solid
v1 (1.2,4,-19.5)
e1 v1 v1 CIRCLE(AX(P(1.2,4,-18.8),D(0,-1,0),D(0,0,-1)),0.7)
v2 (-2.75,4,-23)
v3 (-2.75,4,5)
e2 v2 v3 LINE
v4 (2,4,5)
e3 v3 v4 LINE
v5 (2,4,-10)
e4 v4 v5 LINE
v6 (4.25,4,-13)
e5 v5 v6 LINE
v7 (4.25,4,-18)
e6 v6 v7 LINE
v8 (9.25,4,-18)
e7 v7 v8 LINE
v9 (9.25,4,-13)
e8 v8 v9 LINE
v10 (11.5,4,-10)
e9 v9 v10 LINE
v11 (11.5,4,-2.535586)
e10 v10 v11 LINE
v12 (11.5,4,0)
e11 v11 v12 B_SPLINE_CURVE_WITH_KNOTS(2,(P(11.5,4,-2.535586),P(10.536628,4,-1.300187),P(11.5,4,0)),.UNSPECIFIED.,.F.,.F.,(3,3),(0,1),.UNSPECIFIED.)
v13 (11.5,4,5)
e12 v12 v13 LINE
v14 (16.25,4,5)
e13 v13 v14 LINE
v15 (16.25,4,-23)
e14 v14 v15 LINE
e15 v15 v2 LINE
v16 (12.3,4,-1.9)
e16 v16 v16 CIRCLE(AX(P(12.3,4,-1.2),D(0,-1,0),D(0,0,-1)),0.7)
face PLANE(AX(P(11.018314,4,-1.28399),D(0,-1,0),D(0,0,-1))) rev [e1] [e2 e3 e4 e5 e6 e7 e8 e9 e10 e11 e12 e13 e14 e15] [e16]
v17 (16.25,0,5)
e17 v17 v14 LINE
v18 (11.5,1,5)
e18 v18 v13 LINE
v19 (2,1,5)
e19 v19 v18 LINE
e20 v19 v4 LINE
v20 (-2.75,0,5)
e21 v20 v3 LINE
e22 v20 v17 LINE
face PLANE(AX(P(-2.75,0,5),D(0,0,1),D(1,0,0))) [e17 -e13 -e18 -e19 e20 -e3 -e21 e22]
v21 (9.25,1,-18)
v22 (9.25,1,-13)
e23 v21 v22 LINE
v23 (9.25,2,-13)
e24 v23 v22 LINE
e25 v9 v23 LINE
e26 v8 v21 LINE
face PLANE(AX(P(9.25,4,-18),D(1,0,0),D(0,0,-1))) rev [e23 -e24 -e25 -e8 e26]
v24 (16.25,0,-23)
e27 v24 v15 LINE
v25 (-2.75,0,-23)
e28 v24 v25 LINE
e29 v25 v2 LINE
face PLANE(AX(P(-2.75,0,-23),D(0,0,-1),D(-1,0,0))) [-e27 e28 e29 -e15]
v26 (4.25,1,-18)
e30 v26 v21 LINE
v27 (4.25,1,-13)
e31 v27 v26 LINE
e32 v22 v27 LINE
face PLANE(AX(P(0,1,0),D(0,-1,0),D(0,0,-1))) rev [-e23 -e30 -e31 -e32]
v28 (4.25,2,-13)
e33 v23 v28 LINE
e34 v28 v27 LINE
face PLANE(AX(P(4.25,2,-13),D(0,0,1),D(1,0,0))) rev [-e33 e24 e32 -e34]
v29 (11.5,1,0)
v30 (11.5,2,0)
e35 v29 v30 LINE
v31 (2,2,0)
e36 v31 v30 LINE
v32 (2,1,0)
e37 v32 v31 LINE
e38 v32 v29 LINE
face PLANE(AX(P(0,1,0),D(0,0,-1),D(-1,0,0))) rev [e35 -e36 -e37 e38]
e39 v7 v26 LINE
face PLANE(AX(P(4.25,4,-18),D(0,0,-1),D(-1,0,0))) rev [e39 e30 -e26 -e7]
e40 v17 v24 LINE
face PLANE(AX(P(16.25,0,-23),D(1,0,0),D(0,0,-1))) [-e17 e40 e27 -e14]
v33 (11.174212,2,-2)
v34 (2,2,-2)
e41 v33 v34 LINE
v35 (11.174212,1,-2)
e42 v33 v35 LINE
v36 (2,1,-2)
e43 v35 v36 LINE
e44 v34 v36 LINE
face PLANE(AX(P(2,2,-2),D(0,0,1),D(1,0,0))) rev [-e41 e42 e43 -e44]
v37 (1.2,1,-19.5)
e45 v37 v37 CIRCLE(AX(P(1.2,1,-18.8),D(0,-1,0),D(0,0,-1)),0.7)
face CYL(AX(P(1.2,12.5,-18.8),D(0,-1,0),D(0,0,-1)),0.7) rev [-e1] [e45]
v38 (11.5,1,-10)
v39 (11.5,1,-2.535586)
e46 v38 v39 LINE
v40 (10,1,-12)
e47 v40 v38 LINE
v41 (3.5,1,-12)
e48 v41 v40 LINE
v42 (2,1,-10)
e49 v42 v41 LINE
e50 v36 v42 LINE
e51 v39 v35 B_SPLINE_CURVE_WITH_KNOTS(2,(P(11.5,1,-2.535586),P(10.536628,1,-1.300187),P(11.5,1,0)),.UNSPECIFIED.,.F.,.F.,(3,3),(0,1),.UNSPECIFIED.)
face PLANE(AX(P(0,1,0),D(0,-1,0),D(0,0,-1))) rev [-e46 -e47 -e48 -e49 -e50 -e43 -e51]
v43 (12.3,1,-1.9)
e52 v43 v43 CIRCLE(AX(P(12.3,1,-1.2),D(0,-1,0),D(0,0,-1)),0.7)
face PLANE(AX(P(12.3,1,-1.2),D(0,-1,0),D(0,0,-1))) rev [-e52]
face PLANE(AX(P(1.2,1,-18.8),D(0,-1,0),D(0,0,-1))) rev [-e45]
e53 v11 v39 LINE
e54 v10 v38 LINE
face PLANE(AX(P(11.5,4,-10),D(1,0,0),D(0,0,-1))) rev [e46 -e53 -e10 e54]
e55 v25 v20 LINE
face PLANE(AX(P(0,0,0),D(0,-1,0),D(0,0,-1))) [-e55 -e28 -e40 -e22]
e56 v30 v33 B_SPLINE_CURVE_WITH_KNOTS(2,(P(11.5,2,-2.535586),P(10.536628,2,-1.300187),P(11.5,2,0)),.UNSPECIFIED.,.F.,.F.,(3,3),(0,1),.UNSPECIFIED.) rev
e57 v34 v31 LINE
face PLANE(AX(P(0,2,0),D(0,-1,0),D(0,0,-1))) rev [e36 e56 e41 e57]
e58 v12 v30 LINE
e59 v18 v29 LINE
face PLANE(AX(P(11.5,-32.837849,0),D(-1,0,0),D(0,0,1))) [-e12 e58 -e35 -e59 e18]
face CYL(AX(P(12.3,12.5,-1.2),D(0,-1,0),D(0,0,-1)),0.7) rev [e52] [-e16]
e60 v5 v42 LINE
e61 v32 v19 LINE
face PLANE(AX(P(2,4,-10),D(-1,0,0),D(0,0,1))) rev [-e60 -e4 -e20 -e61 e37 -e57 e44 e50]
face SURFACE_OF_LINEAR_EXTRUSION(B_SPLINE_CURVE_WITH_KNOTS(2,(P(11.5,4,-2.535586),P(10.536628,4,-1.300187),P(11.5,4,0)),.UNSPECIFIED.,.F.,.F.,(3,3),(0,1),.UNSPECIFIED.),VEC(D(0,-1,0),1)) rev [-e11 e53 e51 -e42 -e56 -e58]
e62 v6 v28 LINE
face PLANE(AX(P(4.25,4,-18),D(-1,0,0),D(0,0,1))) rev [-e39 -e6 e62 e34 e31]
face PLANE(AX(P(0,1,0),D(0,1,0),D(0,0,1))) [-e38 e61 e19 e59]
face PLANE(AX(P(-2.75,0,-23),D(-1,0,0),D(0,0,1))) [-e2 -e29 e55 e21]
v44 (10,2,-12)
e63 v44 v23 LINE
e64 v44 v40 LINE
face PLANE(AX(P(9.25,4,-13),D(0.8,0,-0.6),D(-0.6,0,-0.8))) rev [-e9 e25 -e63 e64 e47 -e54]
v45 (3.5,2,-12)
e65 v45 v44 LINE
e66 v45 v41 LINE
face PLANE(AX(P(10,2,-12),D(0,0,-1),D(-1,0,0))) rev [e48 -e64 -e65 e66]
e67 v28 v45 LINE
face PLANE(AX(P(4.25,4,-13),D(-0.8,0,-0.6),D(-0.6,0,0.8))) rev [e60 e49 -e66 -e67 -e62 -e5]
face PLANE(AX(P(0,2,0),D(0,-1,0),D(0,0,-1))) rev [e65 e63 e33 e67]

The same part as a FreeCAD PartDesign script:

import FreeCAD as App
import Part
import Sketcher

V = App.Vector
Q = App.Units.Quantity

doc = App.newDocument("Part")
body = doc.addObject("PartDesign::Body", "Body")

sketch1 = doc.addObject("Sketcher::SketchObject", "Sketch")
body.addObject(sketch1)
sketch1.AttachmentSupport = (doc.XZ_Plane, [""])
sketch1.MapMode = "FlatFace"
sketch1.addGeometry(Part.LineSegment(V(0, -20, 0), V(0, 0, 0)), False)
sketch1.addGeometry(Part.LineSegment(V(0, 0, 0), V(14, 0, 0)), False)
sketch1.addGeometry(Part.LineSegment(V(14, 0, 0), V(14, -20, 0)), False)
sketch1.addGeometry(Part.LineSegment(V(14, -20, 0), V(0, -20, 0)), False)
sketch1.addConstraint(Sketcher.Constraint("Coincident", 0, 2, 1, 1))
sketch1.addConstraint(Sketcher.Constraint("Coincident", 1, 2, 2, 1))
sketch1.addConstraint(Sketcher.Constraint("Coincident", 2, 2, 3, 1))
sketch1.addConstraint(Sketcher.Constraint("Coincident", 3, 2, 0, 1))
sketch1.addConstraint(Sketcher.Constraint("Vertical", 0))
sketch1.addConstraint(Sketcher.Constraint("Horizontal", 1))
sketch1.addConstraint(Sketcher.Constraint("Vertical", 2))
sketch1.addConstraint(Sketcher.Constraint("Horizontal", 3))
sketch1.addConstraint(Sketcher.Constraint("Coincident", 0, 2, -1, 1))
sketch1.addConstraint(Sketcher.Constraint("DistanceY", 0, 1, 0, 2, Q("20 mm")))
sketch1.addConstraint(Sketcher.Constraint("DistanceX", 1, 1, 1, 2, Q("13.5 mm")))
pad1 = doc.addObject("PartDesign::Pad", "Pad")
body.addObject(pad1)
pad1.Profile = sketch1
pad1.Length = 1
pad1.Reversed = True

sketch2 = doc.addObject("Sketcher::SketchObject", "Sketch001")
body.addObject(sketch2)
sketch2.AttachmentSupport = (doc.XZ_Plane, [""])
sketch2.MapMode = "FlatFace"
sketch2.AttachmentOffset = App.Placement(V(0, 0, -1), App.Rotation())
sketch2.addGeometry(Part.LineSegment(V(2, 0, 0), V(2, -10, 0)), False)
sketch2.addGeometry(Part.LineSegment(V(2, -10, 0), V(4.25, -13, 0)), False)
sketch2.addGeometry(Part.LineSegment(V(4.25, -13, 0), V(4.25, -18, 0)), False)
sketch2.addGeometry(Part.LineSegment(V(4.25, -18, 0), V(9.25, -18, 0)), False)
sketch2.addGeometry(Part.LineSegment(V(9.25, -18, 0), V(9.25, -13, 0)), False)
sketch2.addGeometry(Part.LineSegment(V(9.25, -13, 0), V(11.5, -10, 0)), False)
sketch2.addGeometry(Part.LineSegment(V(11.5, -10, 0), V(11.5, -2.535586, 0)), False)
sketch2.addGeometry(Part.BSplineCurve([V(11.5, -2.535586, 0), V(10.536628, -1.300187, 0), V(11.5, 0, 0)], [3, 3], [0, 1], False, 2, [1, 1, 1], False), False)
sketch2.addGeometry(Part.LineSegment(V(11.5, 0, 0), V(13.5, 0, 0)), False)
sketch2.addGeometry(Part.LineSegment(V(13.5, 0, 0), V(13.5, -20, 0)), False)
sketch2.addGeometry(Part.LineSegment(V(13.5, -20, 0), V(0, -20, 0)), False)
sketch2.addGeometry(Part.LineSegment(V(0, -20, 0), V(0, 0, 0)), False)
sketch2.addGeometry(Part.LineSegment(V(0, 0, 0), V(2, 0, 0)), False)
sketch2.addConstraint(Sketcher.Constraint("Block", 7))
sketch2.addConstraint(Sketcher.Constraint("Coincident", 0, 2, 1, 1))
sketch2.addConstraint(Sketcher.Constraint("Coincident", 1, 2, 2, 1))
sketch2.addConstraint(Sketcher.Constraint("Coincident", 2, 2, 3, 1))
sketch2.addConstraint(Sketcher.Constraint("Coincident", 3, 2, 4, 1))
sketch2.addConstraint(Sketcher.Constraint("Coincident", 4, 2, 5, 1))
sketch2.addConstraint(Sketcher.Constraint("Coincident", 5, 2, 6, 1))
sketch2.addConstraint(Sketcher.Constraint("Coincident", 6, 2, 7, 1))
sketch2.addConstraint(Sketcher.Constraint("Coincident", 7, 2, 8, 1))
sketch2.addConstraint(Sketcher.Constraint("Coincident", 8, 2, 9, 1))
sketch2.addConstraint(Sketcher.Constraint("Coincident", 9, 2, 10, 1))
sketch2.addConstraint(Sketcher.Constraint("Coincident", 10, 2, 11, 1))
sketch2.addConstraint(Sketcher.Constraint("Coincident", 11, 2, 12, 1))
sketch2.addConstraint(Sketcher.Constraint("Coincident", 12, 2, 0, 1))
sketch2.addConstraint(Sketcher.Constraint("Vertical", 0))
sketch2.addConstraint(Sketcher.Constraint("Vertical", 2))
sketch2.addConstraint(Sketcher.Constraint("Horizontal", 3))
sketch2.addConstraint(Sketcher.Constraint("Vertical", 4))
sketch2.addConstraint(Sketcher.Constraint("Vertical", 6))
sketch2.addConstraint(Sketcher.Constraint("Horizontal", 8))
sketch2.addConstraint(Sketcher.Constraint("Vertical", 9))
sketch2.addConstraint(Sketcher.Constraint("Horizontal", 10))
sketch2.addConstraint(Sketcher.Constraint("Vertical", 11))
sketch2.addConstraint(Sketcher.Constraint("Horizontal", 12))
sketch2.addConstraint(Sketcher.Constraint("Coincident", 11, 2, -1, 1))
sketch2.addConstraint(Sketcher.Constraint("Horizontal", 1, 2, 4, 2))
sketch2.addConstraint(Sketcher.Constraint("Horizontal", 0, 2, 5, 2))
sketch2.addConstraint(Sketcher.Constraint("Equal", 8, 12))
sketch2.addConstraint(Sketcher.Constraint("Equal", 3, 2))
sketch2.addConstraint(Sketcher.Constraint("Equal", 1, 5))
sketch2.addConstraint(Sketcher.Constraint("DistanceX", 3, 1, 3, 2, Q("5 mm")))
sketch2.addConstraint(Sketcher.Constraint("DistanceX", 8, 1, 8, 2, Q("2 mm")))
sketch2.addConstraint(Sketcher.Constraint("DistanceY", 0, 2, 0, 1, Q("10 mm")))
sketch2.addConstraint(Sketcher.Constraint("DistanceY", 9, 2, 9, 1, Q("20 mm")))
sketch2.addConstraint(Sketcher.Constraint("DistanceY", 1, 2, -1, 1, Q("13 mm")))
pad2 = doc.addObject("PartDesign::Pad", "Pad001")
body.addObject(pad2)
pad2.Profile = sketch2
pad2.Length = 3
pad2.Reversed = True

sketch3 = doc.addObject("Sketcher::SketchObject", "Sketch002")
body.addObject(sketch3)
sketch3.AttachmentSupport = (doc.XZ_Plane, [""])
sketch3.MapMode = "FlatFace"
sketch3.AttachmentOffset = App.Placement(V(0, 0, -1), App.Rotation())
sketch3.addGeometry(Part.LineSegment(V(9.2, -13, 0), V(4.2, -13, 0)), False)
sketch3.addGeometry(Part.LineSegment(V(4.2, -13, 0), V(3.5, -12, 0)), False)
sketch3.addGeometry(Part.LineSegment(V(3.5, -12, 0), V(10, -12, 0)), False)
sketch3.addGeometry(Part.LineSegment(V(10, -12, 0), V(9.2, -13, 0)), False)
sketch3.addConstraint(Sketcher.Constraint("Coincident", 0, 2, 1, 1))
sketch3.addConstraint(Sketcher.Constraint("Coincident", 1, 2, 2, 1))
sketch3.addConstraint(Sketcher.Constraint("Coincident", 2, 2, 3, 1))
sketch3.addConstraint(Sketcher.Constraint("Coincident", 3, 2, 0, 1))
sketch3.addConstraint(Sketcher.Constraint("Horizontal", 0))
sketch3.addConstraint(Sketcher.Constraint("Horizontal", 2))
sketch3.addConstraint(Sketcher.Constraint("Equal", 1, 3))
sketch3.addConstraint(Sketcher.Constraint("DistanceX", 0, 2, 0, 1, Q("5 mm")))
sketch3.addConstraint(Sketcher.Constraint("DistanceX", 2, 1, 2, 2, Q("6.5 mm")))
sketch3.addConstraint(Sketcher.Constraint("DistanceY", 0, 2, -1, 1, Q("13 mm")))
sketch3.addConstraint(Sketcher.Constraint("DistanceY", 1, 2, -1, 1, Q("12 mm")))
sketch3.addConstraint(Sketcher.Constraint("DistanceX", -1, 1, 2, 2, Q("10 mm")))
pad3 = doc.addObject("PartDesign::Pad", "Pad002")
body.addObject(pad3)
pad3.Profile = sketch3
pad3.Length = 1
pad3.Reversed = True

sketch4 = doc.addObject("Sketcher::SketchObject", "Sketch003")
body.addObject(sketch4)
sketch4.AttachmentSupport = (doc.XZ_Plane, [""])
sketch4.MapMode = "FlatFace"
sketch4.AttachmentOffset = App.Placement(V(0, 0, -1), App.Rotation())
sketch4.addGeometry(Part.Circle(V(1.2, -18.8, 0), V(0, 0, 1), 0.7), False)
sketch4.addGeometry(Part.Circle(V(12.3, -1.2, 0), V(0, 0, 1), 0.7), False)
sketch4.addConstraint(Sketcher.Constraint("Equal", 0, 1))
sketch4.addConstraint(Sketcher.Constraint("Diameter", 0, Q("1.4 mm")))
sketch4.addConstraint(Sketcher.Constraint("DistanceX", -1, 1, 0, 3, Q("1.2 mm")))
sketch4.addConstraint(Sketcher.Constraint("DistanceY", 0, 3, -1, 1, Q("18.8 mm")))
sketch4.addConstraint(Sketcher.Constraint("DistanceX", -1, 1, 1, 3, Q("12.3 mm")))
sketch4.addConstraint(Sketcher.Constraint("DistanceY", 1, 3, -1, 1, Q("1.2 mm")))
pocket1 = doc.addObject("PartDesign::Pocket", "Pocket")
body.addObject(pocket1)
pocket1.Profile = sketch4
pocket1.Length = 11.5

sketch5 = doc.addObject("Sketcher::SketchObject", "Sketch004")
body.addObject(sketch5)
sketch5.AttachmentSupport = (doc.XZ_Plane, [""])
sketch5.MapMode = "FlatFace"
sketch5.AttachmentOffset = App.Placement(V(0, 0, -1), App.Rotation())
sketch5.addGeometry(Part.LineSegment(V(2, -2, 0), V(2, 0, 0)), False)
sketch5.addGeometry(Part.LineSegment(V(2, 0, 0), V(11.5, 0, 0)), False)
sketch5.addGeometry(Part.LineSegment(V(11.5, 0, 0), V(11.5, -2, 0)), False)
sketch5.addGeometry(Part.LineSegment(V(11.5, -2, 0), V(2, -2, 0)), False)
sketch5.addConstraint(Sketcher.Constraint("Coincident", 0, 2, 1, 1))
sketch5.addConstraint(Sketcher.Constraint("Coincident", 1, 2, 2, 1))
sketch5.addConstraint(Sketcher.Constraint("Coincident", 2, 2, 3, 1))
sketch5.addConstraint(Sketcher.Constraint("Coincident", 3, 2, 0, 1))
sketch5.addConstraint(Sketcher.Constraint("Vertical", 0))
sketch5.addConstraint(Sketcher.Constraint("Horizontal", 1))
sketch5.addConstraint(Sketcher.Constraint("Vertical", 2))
sketch5.addConstraint(Sketcher.Constraint("Horizontal", 3))
sketch5.addConstraint(Sketcher.Constraint("PointOnObject", 0, 2, -1))
sketch5.addConstraint(Sketcher.Constraint("DistanceY", 0, 1, 0, 2, Q("2 mm")))
sketch5.addConstraint(Sketcher.Constraint("DistanceX", 1, 1, 1, 2, Q("9.5 mm")))
sketch5.addConstraint(Sketcher.Constraint("DistanceX", -1, 1, 0, 2, Q("2 mm")))
pad4 = doc.addObject("PartDesign::Pad", "Pad003")
body.addObject(pad4)
pad4.Profile = sketch5
pad4.Length = 1
pad4.Reversed = True

sketch6 = doc.addObject("Sketcher::SketchObject", "Sketch005")
body.addObject(sketch6)
sketch6.AttachmentSupport = (doc.XZ_Plane, [""])
sketch6.MapMode = "FlatFace"
sketch6.AttachmentOffset = App.Placement(V(0, 0, -1), App.Rotation())
sketch6.addGeometry(Part.LineSegment(V(-3, -23, 0), V(-3, 5, 0)), False)
sketch6.addGeometry(Part.LineSegment(V(-3, 5, 0), V(16, 5, 0)), False)
sketch6.addGeometry(Part.LineSegment(V(16, 5, 0), V(16, -23, 0)), False)
sketch6.addGeometry(Part.LineSegment(V(16, -23, 0), V(-3, -23, 0)), False)
sketch6.addGeometry(Part.LineSegment(V(14, 0, 0), V(0, 0, 0)), False)
sketch6.addGeometry(Part.LineSegment(V(0, 0, 0), V(0, -20, 0)), False)
sketch6.addGeometry(Part.LineSegment(V(0, -20, 0), V(14, -20, 0)), False)
sketch6.addGeometry(Part.LineSegment(V(14, -20, 0), V(14, 0, 0)), False)
sketch6.addConstraint(Sketcher.Constraint("Coincident", 0, 2, 1, 1))
sketch6.addConstraint(Sketcher.Constraint("Coincident", 1, 2, 2, 1))
sketch6.addConstraint(Sketcher.Constraint("Coincident", 2, 2, 3, 1))
sketch6.addConstraint(Sketcher.Constraint("Coincident", 3, 2, 0, 1))
sketch6.addConstraint(Sketcher.Constraint("Coincident", 4, 2, 5, 1))
sketch6.addConstraint(Sketcher.Constraint("Coincident", 5, 2, 6, 1))
sketch6.addConstraint(Sketcher.Constraint("Coincident", 6, 2, 7, 1))
sketch6.addConstraint(Sketcher.Constraint("Coincident", 7, 2, 4, 1))
sketch6.addConstraint(Sketcher.Constraint("Vertical", 0))
sketch6.addConstraint(Sketcher.Constraint("Horizontal", 1))
sketch6.addConstraint(Sketcher.Constraint("Vertical", 2))
sketch6.addConstraint(Sketcher.Constraint("Horizontal", 3))
sketch6.addConstraint(Sketcher.Constraint("Horizontal", 4))
sketch6.addConstraint(Sketcher.Constraint("Vertical", 5))
sketch6.addConstraint(Sketcher.Constraint("Horizontal", 6))
sketch6.addConstraint(Sketcher.Constraint("Vertical", 7))
sketch6.addConstraint(Sketcher.Constraint("Coincident", 4, 2, -1, 1))
sketch6.addConstraint(Sketcher.Constraint("DistanceX", 1, 1, 1, 2, Q("19 mm")))
sketch6.addConstraint(Sketcher.Constraint("DistanceY", 0, 1, 0, 2, Q("28 mm")))
sketch6.addConstraint(Sketcher.Constraint("DistanceY", 5, 2, 5, 1, Q("20 mm")))
sketch6.addConstraint(Sketcher.Constraint("DistanceX", 4, 2, 4, 1, Q("13.5 mm")))
sketch6.addConstraint(Sketcher.Constraint("DistanceY", -1, 1, 0, 2, Q("5 mm")))
sketch6.addConstraint(Sketcher.Constraint("DistanceX", 0, 2, -1, 1, Q("2.75 mm")))
pad5 = doc.addObject("PartDesign::Pad", "Pad004")
body.addObject(pad5)
pad5.Profile = sketch6
pad5.Length = 1

sketch7 = doc.addObject("Sketcher::SketchObject", "Sketch006")
body.addObject(sketch7)
sketch7.AttachmentSupport = (doc.XZ_Plane, [""])
sketch7.MapMode = "FlatFace"
sketch7.AttachmentOffset = App.Placement(V(0, 0, -4), App.Rotation())
sketch7.addGeometry(Part.LineSegment(V(2, 5, 0), V(2, 0, 0)), False)
sketch7.addGeometry(Part.LineSegment(V(2, 0, 0), V(0, 0, 0)), False)
sketch7.addGeometry(Part.LineSegment(V(0, 0, 0), V(0, -20, 0)), False)
sketch7.addGeometry(Part.LineSegment(V(0, -20, 0), V(13.5, -20, 0)), False)
sketch7.addGeometry(Part.LineSegment(V(13.5, -20, 0), V(13.5, 0, 0)), False)
sketch7.addGeometry(Part.LineSegment(V(13.5, 0, 0), V(11.5, 0, 0)), False)
sketch7.addGeometry(Part.LineSegment(V(11.5, 0, 0), V(11.5, 5, 0)), False)
sketch7.addGeometry(Part.LineSegment(V(11.5, 5, 0), V(16.2, 5, 0)), False)
sketch7.addGeometry(Part.LineSegment(V(16.2, 5, 0), V(16.2, -23, 0)), False)
sketch7.addGeometry(Part.LineSegment(V(16.2, -23, 0), V(-2.8, -23, 0)), False)
sketch7.addGeometry(Part.LineSegment(V(-2.8, -23, 0), V(-2.8, 5, 0)), False)
sketch7.addGeometry(Part.LineSegment(V(-2.8, 5, 0), V(2, 5, 0)), False)
sketch7.addConstraint(Sketcher.Constraint("Coincident", 0, 2, 1, 1))
sketch7.addConstraint(Sketcher.Constraint("Coincident", 1, 2, 2, 1))
sketch7.addConstraint(Sketcher.Constraint("Coincident", 2, 2, 3, 1))
sketch7.addConstraint(Sketcher.Constraint("Coincident", 3, 2, 4, 1))
sketch7.addConstraint(Sketcher.Constraint("Coincident", 4, 2, 5, 1))
sketch7.addConstraint(Sketcher.Constraint("Coincident", 5, 2, 6, 1))
sketch7.addConstraint(Sketcher.Constraint("Coincident", 6, 2, 7, 1))
sketch7.addConstraint(Sketcher.Constraint("Coincident", 7, 2, 8, 1))
sketch7.addConstraint(Sketcher.Constraint("Coincident", 8, 2, 9, 1))
sketch7.addConstraint(Sketcher.Constraint("Coincident", 9, 2, 10, 1))
sketch7.addConstraint(Sketcher.Constraint("Coincident", 10, 2, 11, 1))
sketch7.addConstraint(Sketcher.Constraint("Coincident", 11, 2, 0, 1))
sketch7.addConstraint(Sketcher.Constraint("Vertical", 0))
sketch7.addConstraint(Sketcher.Constraint("Horizontal", 1))
sketch7.addConstraint(Sketcher.Constraint("Vertical", 2))
sketch7.addConstraint(Sketcher.Constraint("Horizontal", 3))
sketch7.addConstraint(Sketcher.Constraint("Vertical", 4))
sketch7.addConstraint(Sketcher.Constraint("Horizontal", 5))
sketch7.addConstraint(Sketcher.Constraint("Vertical", 6))
sketch7.addConstraint(Sketcher.Constraint("Horizontal", 7))
sketch7.addConstraint(Sketcher.Constraint("Vertical", 8))
sketch7.addConstraint(Sketcher.Constraint("Horizontal", 9))
sketch7.addConstraint(Sketcher.Constraint("Vertical", 10))
sketch7.addConstraint(Sketcher.Constraint("Horizontal", 11))
sketch7.addConstraint(Sketcher.Constraint("Coincident", 1, 2, -1, 1))
sketch7.addConstraint(Sketcher.Constraint("PointOnObject", 4, 2, -1))
sketch7.addConstraint(Sketcher.Constraint("Horizontal", 7, 2, 10, 2))
sketch7.addConstraint(Sketcher.Constraint("Equal", 1, 5))
sketch7.addConstraint(Sketcher.Constraint("Equal", 7, 11))
sketch7.addConstraint(Sketcher.Constraint("DistanceX", 1, 2, 1, 1, Q("2 mm")))
sketch7.addConstraint(Sketcher.Constraint("DistanceX", 9, 2, 9, 1, Q("19 mm")))
sketch7.addConstraint(Sketcher.Constraint("DistanceY", 0, 2, 0, 1, Q("5 mm")))
sketch7.addConstraint(Sketcher.Constraint("DistanceY", 2, 2, 2, 1, Q("20 mm")))
sketch7.addConstraint(Sketcher.Constraint("DistanceY", 8, 2, 8, 1, Q("28 mm")))
sketch7.addConstraint(Sketcher.Constraint("DistanceX", 3, 1, 3, 2, Q("13.5 mm")))
pad6 = doc.addObject("PartDesign::Pad", "Pad005")
body.addObject(pad6)
pad6.Profile = sketch7
pad6.Length = 3

doc.recompute()
